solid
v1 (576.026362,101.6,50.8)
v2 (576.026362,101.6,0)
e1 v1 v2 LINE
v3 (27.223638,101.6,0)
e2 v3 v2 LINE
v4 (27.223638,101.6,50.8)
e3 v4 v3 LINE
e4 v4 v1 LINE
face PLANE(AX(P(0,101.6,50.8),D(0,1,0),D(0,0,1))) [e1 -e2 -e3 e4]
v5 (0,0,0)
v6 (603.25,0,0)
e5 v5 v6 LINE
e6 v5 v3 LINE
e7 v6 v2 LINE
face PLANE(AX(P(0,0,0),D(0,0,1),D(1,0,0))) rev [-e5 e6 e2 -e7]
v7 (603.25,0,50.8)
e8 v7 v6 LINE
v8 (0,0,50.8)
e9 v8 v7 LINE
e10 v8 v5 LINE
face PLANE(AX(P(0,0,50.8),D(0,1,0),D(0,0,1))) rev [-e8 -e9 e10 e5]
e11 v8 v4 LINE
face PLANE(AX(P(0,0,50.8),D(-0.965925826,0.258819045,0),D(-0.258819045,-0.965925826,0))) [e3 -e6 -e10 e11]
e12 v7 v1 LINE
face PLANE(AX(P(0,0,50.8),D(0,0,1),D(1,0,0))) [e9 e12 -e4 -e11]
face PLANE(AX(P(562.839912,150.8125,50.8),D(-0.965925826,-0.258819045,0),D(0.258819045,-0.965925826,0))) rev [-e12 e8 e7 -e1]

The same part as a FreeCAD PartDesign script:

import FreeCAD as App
import Part
import Sketcher

V = App.Vector
Q = App.Units.Quantity

doc = App.newDocument("Part")
params = doc.addObject("Spreadsheet::Sheet", "Params")
for row, (alias, value) in enumerate([
    ("sketch1_width", "23.75 in"),
    ("pad1_length", "2 in"),
], start=1):
    params.set(f"A{row}", alias)
    params.set(f"B{row}", "=" + value)
    params.setAlias(f"B{row}", alias)

body = doc.addObject("PartDesign::Body", "Body")

# Sketch on XY plane
sketch1 = body.newObject("Sketcher::SketchObject", "Sketch")
sketch1.AttachmentSupport = (doc.getObject("XY_Plane"), [""])
sketch1.MapMode = "FlatFace"
sketch1.addGeometry(Part.LineSegment(V(27, 102, 0), V(0, 0, 0)), False)
sketch1.addGeometry(Part.LineSegment(V(0, 0, 0), V(603, 0, 0)), False)
sketch1.addGeometry(Part.LineSegment(V(603, 0, 0), V(576, 102, 0)), False)
sketch1.addGeometry(Part.LineSegment(V(576, 102, 0), V(27, 102, 0)), False)
sketch1.addConstraint(Sketcher.Constraint("Coincident", 0, 2, 1, 1))
sketch1.addConstraint(Sketcher.Constraint("Coincident", 1, 2, 2, 1))
sketch1.addConstraint(Sketcher.Constraint("Coincident", 2, 2, 3, 1))
sketch1.addConstraint(Sketcher.Constraint("Coincident", 3, 2, 0, 1))
sketch1.addConstraint(Sketcher.Constraint("Horizontal", 1))
sketch1.addConstraint(Sketcher.Constraint("Horizontal", 3))
sketch1.addConstraint(Sketcher.Constraint("Coincident", 0, 2, -1, 1))
sketch1.addConstraint(Sketcher.Constraint("Equal", 0, 2))
sketch1.addConstraint(Sketcher.Constraint("DistanceY", -1, 1, 2, 2, Q("4 in")))
sketch1.addConstraint(Sketcher.Constraint("Angle", 0, Q("-105 deg")))
sketch1.addConstraint(Sketcher.Constraint("DistanceX", 1, 1, 1, 2, Q("23.75 in")))
sketch1.setExpression("Constraints[10]", "Params.sketch1_width")
pad1 = body.newObject("PartDesign::Pad", "Pad")
pad1.Profile = sketch1
pad1.setExpression("Length", "Params.pad1_length")

doc.recompute()
